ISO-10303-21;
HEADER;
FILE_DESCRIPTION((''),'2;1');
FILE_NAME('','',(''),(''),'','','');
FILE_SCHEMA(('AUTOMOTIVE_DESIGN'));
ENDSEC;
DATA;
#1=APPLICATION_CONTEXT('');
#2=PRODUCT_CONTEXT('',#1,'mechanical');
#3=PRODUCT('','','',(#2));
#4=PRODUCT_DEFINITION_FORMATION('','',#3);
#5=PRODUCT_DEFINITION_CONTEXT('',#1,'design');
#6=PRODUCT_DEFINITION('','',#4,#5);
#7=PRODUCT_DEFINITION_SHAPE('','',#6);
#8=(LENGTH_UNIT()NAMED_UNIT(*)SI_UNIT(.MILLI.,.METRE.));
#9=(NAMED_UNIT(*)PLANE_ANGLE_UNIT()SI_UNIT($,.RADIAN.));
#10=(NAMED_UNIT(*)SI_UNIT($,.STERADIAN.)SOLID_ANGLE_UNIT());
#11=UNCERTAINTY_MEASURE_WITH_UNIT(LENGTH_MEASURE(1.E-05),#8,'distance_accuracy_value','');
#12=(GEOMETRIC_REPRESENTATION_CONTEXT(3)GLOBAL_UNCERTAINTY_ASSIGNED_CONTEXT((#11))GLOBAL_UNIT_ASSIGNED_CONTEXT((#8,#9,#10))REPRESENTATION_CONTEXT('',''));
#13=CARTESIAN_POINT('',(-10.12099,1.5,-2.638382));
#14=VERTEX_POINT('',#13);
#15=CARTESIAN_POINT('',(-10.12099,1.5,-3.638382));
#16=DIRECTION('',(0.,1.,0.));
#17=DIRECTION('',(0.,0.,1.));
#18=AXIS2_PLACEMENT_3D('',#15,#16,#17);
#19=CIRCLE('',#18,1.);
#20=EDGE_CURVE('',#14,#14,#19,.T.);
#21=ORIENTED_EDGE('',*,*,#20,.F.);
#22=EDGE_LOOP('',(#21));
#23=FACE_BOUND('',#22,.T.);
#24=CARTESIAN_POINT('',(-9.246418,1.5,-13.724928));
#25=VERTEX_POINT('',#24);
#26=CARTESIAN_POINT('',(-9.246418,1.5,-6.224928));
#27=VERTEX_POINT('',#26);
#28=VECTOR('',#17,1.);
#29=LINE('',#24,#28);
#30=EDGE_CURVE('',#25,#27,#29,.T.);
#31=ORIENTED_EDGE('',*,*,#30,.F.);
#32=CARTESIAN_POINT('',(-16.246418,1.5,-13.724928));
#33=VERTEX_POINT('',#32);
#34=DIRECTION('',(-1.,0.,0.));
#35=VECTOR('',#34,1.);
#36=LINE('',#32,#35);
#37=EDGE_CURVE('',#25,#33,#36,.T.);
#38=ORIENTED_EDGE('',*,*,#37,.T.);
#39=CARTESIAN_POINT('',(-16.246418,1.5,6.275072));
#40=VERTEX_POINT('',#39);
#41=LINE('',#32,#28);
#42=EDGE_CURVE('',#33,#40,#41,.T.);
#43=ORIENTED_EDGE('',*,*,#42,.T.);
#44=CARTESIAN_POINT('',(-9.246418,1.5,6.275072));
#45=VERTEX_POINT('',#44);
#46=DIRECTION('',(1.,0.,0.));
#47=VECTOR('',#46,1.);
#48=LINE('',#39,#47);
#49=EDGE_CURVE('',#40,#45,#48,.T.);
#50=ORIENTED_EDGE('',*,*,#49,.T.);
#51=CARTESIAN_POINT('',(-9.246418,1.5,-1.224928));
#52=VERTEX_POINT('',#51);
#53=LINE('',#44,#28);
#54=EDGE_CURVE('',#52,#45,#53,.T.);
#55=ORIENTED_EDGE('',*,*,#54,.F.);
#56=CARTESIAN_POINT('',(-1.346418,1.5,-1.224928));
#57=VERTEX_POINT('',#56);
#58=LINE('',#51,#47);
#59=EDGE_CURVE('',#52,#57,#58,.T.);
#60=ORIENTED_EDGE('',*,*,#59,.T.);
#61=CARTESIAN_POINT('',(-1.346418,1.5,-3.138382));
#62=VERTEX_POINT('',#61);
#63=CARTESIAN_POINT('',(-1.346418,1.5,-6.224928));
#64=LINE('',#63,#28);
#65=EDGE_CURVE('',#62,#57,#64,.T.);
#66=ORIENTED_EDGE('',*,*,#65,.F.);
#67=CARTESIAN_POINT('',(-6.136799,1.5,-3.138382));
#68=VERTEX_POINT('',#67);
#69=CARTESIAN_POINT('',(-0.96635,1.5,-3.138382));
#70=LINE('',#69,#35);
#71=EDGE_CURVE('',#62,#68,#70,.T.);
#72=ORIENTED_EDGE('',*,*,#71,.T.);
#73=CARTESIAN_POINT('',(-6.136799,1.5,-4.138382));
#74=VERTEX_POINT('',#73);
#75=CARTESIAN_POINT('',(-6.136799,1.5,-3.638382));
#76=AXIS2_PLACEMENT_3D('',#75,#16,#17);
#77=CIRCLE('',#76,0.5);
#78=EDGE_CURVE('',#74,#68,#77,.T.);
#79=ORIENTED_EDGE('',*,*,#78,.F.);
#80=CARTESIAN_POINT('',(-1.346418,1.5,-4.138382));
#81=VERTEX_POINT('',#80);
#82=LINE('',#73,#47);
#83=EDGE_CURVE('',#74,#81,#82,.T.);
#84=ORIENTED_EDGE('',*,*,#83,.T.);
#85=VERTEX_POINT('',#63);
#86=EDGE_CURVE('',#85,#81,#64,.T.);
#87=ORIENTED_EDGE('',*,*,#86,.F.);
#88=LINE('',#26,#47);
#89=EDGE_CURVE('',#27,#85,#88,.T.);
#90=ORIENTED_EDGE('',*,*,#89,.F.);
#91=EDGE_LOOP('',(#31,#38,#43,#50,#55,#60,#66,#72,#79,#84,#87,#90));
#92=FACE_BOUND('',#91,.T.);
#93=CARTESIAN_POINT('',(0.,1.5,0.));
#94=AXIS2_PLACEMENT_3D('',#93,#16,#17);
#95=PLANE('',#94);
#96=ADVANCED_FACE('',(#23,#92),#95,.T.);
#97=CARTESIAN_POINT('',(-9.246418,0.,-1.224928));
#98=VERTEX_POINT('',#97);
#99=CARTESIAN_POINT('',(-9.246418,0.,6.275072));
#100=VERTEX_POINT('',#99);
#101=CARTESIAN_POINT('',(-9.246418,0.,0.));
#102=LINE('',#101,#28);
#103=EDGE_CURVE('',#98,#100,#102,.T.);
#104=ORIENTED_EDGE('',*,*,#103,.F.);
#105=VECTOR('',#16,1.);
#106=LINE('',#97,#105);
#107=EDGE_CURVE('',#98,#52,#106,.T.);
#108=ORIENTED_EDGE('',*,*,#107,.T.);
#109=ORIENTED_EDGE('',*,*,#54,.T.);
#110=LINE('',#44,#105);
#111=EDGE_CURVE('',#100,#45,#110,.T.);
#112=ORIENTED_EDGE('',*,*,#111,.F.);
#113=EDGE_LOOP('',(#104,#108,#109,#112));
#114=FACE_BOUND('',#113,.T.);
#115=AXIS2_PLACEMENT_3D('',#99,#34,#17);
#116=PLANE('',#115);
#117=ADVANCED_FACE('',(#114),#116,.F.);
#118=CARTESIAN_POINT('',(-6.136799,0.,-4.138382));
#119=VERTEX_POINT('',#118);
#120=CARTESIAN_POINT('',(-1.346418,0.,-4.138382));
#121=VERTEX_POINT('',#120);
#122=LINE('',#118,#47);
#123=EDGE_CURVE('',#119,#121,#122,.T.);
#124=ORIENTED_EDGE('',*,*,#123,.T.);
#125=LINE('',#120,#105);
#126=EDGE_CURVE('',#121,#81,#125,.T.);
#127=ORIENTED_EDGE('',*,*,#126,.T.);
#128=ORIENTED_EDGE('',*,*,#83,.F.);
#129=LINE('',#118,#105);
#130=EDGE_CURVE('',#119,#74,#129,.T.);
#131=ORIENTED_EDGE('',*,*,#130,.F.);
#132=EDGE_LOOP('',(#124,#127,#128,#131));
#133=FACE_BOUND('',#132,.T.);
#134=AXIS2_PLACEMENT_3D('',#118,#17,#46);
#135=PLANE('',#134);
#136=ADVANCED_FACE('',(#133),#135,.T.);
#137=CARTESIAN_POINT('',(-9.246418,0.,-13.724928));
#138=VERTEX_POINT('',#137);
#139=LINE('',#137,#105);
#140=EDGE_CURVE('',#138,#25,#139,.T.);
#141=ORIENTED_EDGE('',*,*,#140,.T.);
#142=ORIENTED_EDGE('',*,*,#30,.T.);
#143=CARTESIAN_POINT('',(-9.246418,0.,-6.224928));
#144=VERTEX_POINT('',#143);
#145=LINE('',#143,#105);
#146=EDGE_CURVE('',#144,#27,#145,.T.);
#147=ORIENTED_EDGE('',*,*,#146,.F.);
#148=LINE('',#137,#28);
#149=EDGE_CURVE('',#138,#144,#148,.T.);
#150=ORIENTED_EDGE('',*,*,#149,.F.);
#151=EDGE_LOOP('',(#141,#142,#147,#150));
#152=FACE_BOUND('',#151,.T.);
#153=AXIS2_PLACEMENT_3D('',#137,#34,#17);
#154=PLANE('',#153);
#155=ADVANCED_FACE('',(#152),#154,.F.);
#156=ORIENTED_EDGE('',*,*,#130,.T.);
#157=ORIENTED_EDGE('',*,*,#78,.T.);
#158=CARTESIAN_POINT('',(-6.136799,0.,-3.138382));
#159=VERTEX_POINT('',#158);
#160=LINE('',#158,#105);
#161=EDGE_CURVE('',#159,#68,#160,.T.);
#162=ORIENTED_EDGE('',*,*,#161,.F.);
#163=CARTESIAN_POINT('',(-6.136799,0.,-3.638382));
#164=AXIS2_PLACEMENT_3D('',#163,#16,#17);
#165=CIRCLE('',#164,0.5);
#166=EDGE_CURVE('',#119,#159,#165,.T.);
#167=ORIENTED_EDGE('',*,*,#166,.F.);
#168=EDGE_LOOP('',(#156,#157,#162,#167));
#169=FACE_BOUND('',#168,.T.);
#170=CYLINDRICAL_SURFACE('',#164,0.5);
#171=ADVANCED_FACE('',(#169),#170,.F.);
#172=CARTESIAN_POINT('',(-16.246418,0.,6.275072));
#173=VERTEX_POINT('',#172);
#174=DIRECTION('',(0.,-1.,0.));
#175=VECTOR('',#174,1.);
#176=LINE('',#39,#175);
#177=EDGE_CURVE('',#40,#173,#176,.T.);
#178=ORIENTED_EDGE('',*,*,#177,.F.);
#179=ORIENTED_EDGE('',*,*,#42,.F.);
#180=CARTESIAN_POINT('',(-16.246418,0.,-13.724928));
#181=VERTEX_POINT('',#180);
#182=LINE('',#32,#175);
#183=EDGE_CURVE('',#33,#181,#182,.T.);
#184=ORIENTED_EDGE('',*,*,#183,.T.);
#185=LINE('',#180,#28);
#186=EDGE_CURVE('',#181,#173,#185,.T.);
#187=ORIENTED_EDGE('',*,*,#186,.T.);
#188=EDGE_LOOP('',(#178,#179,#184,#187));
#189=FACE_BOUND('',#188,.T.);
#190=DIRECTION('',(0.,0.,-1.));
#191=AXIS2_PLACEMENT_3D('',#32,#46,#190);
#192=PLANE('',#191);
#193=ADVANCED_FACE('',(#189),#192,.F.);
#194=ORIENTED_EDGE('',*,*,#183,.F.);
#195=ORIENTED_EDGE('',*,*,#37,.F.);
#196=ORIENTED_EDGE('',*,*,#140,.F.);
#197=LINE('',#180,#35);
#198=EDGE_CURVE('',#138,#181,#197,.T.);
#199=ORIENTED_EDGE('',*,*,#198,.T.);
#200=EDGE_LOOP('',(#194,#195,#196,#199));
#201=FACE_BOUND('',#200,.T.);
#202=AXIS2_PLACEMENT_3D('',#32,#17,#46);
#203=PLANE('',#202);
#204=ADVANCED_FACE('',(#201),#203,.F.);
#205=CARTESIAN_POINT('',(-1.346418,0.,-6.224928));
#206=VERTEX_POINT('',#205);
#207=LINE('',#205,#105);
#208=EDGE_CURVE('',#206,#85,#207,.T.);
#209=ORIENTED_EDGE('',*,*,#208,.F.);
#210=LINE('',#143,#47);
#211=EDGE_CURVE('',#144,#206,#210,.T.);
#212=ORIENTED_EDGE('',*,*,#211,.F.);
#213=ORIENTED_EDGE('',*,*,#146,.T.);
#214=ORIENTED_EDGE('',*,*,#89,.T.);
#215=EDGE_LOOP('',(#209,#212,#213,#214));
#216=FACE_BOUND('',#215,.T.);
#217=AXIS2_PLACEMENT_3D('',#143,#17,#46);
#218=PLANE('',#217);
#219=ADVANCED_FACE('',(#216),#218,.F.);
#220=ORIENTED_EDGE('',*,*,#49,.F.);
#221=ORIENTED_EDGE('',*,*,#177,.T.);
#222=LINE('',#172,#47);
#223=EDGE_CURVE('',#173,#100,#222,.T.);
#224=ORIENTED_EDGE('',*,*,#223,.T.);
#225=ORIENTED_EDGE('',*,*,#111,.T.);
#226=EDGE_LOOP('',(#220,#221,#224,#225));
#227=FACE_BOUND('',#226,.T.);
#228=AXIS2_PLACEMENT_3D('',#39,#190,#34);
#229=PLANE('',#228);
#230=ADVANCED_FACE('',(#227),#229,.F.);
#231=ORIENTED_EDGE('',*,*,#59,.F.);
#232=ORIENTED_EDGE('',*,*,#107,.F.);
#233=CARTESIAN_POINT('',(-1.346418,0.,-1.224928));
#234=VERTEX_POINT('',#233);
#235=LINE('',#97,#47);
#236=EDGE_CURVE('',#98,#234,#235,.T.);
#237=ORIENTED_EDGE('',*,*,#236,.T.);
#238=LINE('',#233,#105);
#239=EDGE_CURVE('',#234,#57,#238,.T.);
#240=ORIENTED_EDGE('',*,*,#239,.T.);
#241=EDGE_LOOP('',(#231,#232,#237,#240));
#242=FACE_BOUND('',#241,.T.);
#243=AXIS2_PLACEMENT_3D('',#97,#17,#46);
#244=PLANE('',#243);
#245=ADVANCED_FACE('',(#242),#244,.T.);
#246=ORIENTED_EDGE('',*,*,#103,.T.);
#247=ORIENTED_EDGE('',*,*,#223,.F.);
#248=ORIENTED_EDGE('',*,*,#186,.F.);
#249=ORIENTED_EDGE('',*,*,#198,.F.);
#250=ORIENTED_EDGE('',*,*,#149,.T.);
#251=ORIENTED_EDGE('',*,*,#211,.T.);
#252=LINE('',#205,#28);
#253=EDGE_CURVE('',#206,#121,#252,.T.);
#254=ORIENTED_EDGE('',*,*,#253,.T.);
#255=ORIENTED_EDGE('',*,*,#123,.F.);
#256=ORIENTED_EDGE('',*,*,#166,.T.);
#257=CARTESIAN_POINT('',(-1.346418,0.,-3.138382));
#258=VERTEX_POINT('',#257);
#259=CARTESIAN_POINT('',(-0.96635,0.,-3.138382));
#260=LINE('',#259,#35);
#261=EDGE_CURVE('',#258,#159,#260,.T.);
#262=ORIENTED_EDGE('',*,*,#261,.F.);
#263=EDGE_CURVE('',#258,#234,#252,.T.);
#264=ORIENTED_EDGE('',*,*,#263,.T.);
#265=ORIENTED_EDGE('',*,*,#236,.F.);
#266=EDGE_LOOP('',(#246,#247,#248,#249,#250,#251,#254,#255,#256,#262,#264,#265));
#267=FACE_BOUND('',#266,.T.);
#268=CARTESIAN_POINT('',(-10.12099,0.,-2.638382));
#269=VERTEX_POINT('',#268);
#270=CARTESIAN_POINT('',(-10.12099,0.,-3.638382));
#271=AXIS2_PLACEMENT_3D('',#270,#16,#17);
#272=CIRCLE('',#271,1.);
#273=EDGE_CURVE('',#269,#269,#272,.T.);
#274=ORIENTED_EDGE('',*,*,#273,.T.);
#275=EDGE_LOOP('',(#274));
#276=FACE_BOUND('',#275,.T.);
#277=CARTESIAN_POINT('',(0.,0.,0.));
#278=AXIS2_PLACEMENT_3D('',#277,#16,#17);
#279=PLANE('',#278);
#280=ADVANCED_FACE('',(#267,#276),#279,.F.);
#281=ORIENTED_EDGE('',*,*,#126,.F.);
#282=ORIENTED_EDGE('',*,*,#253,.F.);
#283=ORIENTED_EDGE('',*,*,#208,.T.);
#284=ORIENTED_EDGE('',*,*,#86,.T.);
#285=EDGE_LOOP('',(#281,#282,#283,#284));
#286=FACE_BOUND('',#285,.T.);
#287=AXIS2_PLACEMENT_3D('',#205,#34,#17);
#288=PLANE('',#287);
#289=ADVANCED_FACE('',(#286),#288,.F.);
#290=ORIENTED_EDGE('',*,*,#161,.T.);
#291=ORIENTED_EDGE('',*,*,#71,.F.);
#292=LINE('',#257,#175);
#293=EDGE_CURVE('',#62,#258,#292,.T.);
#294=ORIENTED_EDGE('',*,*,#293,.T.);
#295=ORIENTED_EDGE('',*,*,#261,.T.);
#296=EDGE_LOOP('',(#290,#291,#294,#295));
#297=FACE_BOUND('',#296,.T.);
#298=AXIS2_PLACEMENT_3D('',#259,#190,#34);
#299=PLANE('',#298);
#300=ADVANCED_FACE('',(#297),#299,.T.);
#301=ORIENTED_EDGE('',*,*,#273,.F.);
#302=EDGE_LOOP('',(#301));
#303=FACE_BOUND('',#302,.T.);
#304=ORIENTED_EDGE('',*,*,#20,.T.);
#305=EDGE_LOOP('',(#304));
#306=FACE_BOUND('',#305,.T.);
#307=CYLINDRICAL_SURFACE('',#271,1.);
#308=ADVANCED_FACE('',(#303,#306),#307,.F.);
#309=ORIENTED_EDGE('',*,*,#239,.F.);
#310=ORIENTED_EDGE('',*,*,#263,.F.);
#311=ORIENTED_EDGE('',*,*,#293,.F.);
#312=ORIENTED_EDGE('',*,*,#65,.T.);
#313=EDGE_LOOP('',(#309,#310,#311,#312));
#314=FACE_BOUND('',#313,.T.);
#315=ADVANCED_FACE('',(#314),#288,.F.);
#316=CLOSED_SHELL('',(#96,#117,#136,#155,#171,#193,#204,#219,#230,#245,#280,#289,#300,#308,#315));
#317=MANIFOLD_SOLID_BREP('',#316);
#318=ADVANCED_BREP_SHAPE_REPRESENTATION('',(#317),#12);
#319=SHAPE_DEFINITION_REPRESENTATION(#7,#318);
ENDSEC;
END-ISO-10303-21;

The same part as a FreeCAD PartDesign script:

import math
import FreeCAD as App
import Part
import Sketcher

V = App.Vector

doc = App.newDocument("Part")
body = doc.addObject("PartDesign::Body", "Body")

# Sketch on XZ plane
sketch1 = body.newObject("Sketcher::SketchObject", "Sketch")
sketch1.AttachmentSupport = (doc.getObject("XZ_Plane"), [""])
sketch1.MapMode = "FlatFace"
sketch1.addGeometry([
    Part.LineSegment(V(-16, -14, 0), V(-16, 6, 0)),
    Part.LineSegment(V(-16, 6, 0), V(-1, 6, 0)),
    Part.LineSegment(V(-1, 6, 0), V(-1, -14, 0)),
    Part.LineSegment(V(-1, -14, 0), V(-16, -14, 0)),
], False)
sketch1.addConstraint([
    Sketcher.Constraint("Coincident", 0, 2, 1, 1),
    Sketcher.Constraint("Coincident", 1, 2, 2, 1),
    Sketcher.Constraint("Coincident", 2, 2, 3, 1),
    Sketcher.Constraint("Coincident", 3, 2, 0, 1),
    Sketcher.Constraint("Vertical", 0),
    Sketcher.Constraint("Horizontal", 1),
    Sketcher.Constraint("Vertical", 2),
    Sketcher.Constraint("Horizontal", 3),
    Sketcher.Constraint("DistanceX", 1, 1, 1, 2, 15.0),
    Sketcher.Constraint("DistanceY", 0, 1, 0, 2, 20.0),
    Sketcher.Constraint("DistanceX", 0, 2, -1, 1, 16.246418),
    Sketcher.Constraint("DistanceY", -1, 1, 0, 2, 6.275072),
])
pad1 = body.newObject("PartDesign::Pad", "Pad")
pad1.Profile = sketch1
pad1.Length = 1.5
pad1.Reversed = True

# Sketch on XZ plane
sketch2 = body.newObject("Sketcher::SketchObject", "Sketch001")
sketch2.AttachmentSupport = (doc.getObject("XZ_Plane"), [""])
sketch2.MapMode = "FlatFace"
sketch2.AttachmentOffset = App.Placement(V(0, 0, -1.5), App.Rotation())
sketch2.addGeometry(Part.Circle(V(-10.1, -3.6, 0), V(0, 0, 1), 1), False)
sketch2.addConstraint([
    Sketcher.Constraint("Diameter", 0, 2.0),
    Sketcher.Constraint("DistanceX", 0, 3, -1, 1, 10.12099),
    Sketcher.Constraint("DistanceY", 0, 3, -1, 1, 3.638382),
])
pocket1 = body.newObject("PartDesign::Pocket", "Pocket")
pocket1.Profile = sketch2
pocket1.Length = 1.5
pocket1.Reversed = True

# Sketch on XZ plane
sketch3 = body.newObject("Sketcher::SketchObject", "Sketch002")
sketch3.AttachmentSupport = (doc.getObject("XZ_Plane"), [""])
sketch3.MapMode = "FlatFace"
sketch3.AttachmentOffset = App.Placement(V(0, 0, -1.5), App.Rotation())
sketch3.addGeometry([
    Part.LineSegment(V(-9, 7, 0), V(2, 6, 0)),  # 0
    Part.LineSegment(V(2, 6, 0), V(2, -15, 0)),  # 1
    Part.LineSegment(V(2, -15, 0), V(-9, -14, 0)),  # 2
    Part.LineSegment(V(-9, -14, 0), V(-9, -6, 0)),  # 3
    Part.LineSegment(V(-9, -6, 0), V(-1, -6, 0)),  # 4
    Part.LineSegment(V(-1, -6, 0), V(-1, -1, 0)),  # 5
    Part.LineSegment(V(-1, -1, 0), V(-9, -1, 0)),  # 6
    Part.LineSegment(V(-9, -1, 0), V(-9, 7, 0)),  # 7
], False)
sketch3.addConstraint([
    Sketcher.Constraint("Coincident", 0, 2, 1, 1),
    Sketcher.Constraint("Coincident", 1, 2, 2, 1),
    Sketcher.Constraint("Coincident", 2, 2, 3, 1),
    Sketcher.Constraint("Coincident", 3, 2, 4, 1),
    Sketcher.Constraint("Coincident", 4, 2, 5, 1),
    Sketcher.Constraint("Coincident", 5, 2, 6, 1),
    Sketcher.Constraint("Coincident", 6, 2, 7, 1),
    Sketcher.Constraint("Coincident", 7, 2, 0, 1),
    Sketcher.Constraint("Vertical", 1),
    Sketcher.Constraint("Vertical", 3),
    Sketcher.Constraint("Horizontal", 4),
    Sketcher.Constraint("Vertical", 5),
    Sketcher.Constraint("Horizontal", 6),
    Sketcher.Constraint("Vertical", 7),
    Sketcher.Constraint("Parallel", 0, 2),
    Sketcher.Constraint("Vertical", 3, 2, 6, 2),
    Sketcher.Constraint("DistanceY", 5, 1, 5, 2, 5.0),
    Sketcher.Constraint("DistanceX", 4, 1, 4, 2, 7.9),
    Sketcher.Constraint("DistanceY", 3, 1, 3, 2, 7.5),
    Sketcher.Constraint("DistanceX", 2, 2, 1, 2, 11.239399),
    Sketcher.Constraint("DistanceY", 1, 2, 1, 1, 21.207383),
    Sketcher.Constraint("DistanceX", -1, 1, 0, 2, 1.992981),
    Sketcher.Constraint("DistanceY", 1, 2, -1, 1, 15.151348),
    Sketcher.Constraint("DistanceY", 2, 2, -1, 1, 13.724928),
])
pocket2 = body.newObject("PartDesign::Pocket", "Pocket001")
pocket2.Profile = sketch3
pocket2.Length = 1.5
pocket2.Reversed = True

# Sketch on XZ plane
sketch4 = body.newObject("Sketcher::SketchObject", "Sketch003")
sketch4.AttachmentSupport = (doc.getObject("XZ_Plane"), [""])
sketch4.MapMode = "FlatFace"
sketch4.AttachmentOffset = App.Placement(V(0, 0, -1.5), App.Rotation())
sketch4.addGeometry([
    Part.LineSegment(V(-1, -4.1, 0), V(-6.1, -4.1, 0)),
    Part.ArcOfCircle(Part.Circle(V(-6.1, -3.6, 0), V(0, 0, 1), 0.5), math.radians(90), math.radians(270)),
    Part.LineSegment(V(-6.1, -3.1, 0), V(-1, -3.1, 0)),
    Part.LineSegment(V(-1, -3.1, 0), V(-1, -4.1, 0)),
], False)
sketch4.addConstraint([
    Sketcher.Constraint("Tangent", 0, 2, 1, 2),
    Sketcher.Constraint("Tangent", 1, 1, 2, 1),
    Sketcher.Constraint("Coincident", 2, 2, 3, 1),
    Sketcher.Constraint("Coincident", 3, 2, 0, 1),
    Sketcher.Constraint("Horizontal", 0),
    Sketcher.Constraint("Horizontal", 2),
    Sketcher.Constraint("Vertical", 3),
    Sketcher.Constraint("Radius", 1, 0.5),
    Sketcher.Constraint("DistanceX", 0, 2, 0, 1, 5.170449),
    Sketcher.Constraint("DistanceX", 1, 3, -1, 1, 6.136799),
    Sketcher.Constraint("DistanceY", 1, 3, -1, 1, 3.638382),
])
pocket3 = body.newObject("PartDesign::Pocket", "Pocket002")
pocket3.Profile = sketch4
pocket3.Length = 1.5
pocket3.Reversed = True

doc.recompute()
